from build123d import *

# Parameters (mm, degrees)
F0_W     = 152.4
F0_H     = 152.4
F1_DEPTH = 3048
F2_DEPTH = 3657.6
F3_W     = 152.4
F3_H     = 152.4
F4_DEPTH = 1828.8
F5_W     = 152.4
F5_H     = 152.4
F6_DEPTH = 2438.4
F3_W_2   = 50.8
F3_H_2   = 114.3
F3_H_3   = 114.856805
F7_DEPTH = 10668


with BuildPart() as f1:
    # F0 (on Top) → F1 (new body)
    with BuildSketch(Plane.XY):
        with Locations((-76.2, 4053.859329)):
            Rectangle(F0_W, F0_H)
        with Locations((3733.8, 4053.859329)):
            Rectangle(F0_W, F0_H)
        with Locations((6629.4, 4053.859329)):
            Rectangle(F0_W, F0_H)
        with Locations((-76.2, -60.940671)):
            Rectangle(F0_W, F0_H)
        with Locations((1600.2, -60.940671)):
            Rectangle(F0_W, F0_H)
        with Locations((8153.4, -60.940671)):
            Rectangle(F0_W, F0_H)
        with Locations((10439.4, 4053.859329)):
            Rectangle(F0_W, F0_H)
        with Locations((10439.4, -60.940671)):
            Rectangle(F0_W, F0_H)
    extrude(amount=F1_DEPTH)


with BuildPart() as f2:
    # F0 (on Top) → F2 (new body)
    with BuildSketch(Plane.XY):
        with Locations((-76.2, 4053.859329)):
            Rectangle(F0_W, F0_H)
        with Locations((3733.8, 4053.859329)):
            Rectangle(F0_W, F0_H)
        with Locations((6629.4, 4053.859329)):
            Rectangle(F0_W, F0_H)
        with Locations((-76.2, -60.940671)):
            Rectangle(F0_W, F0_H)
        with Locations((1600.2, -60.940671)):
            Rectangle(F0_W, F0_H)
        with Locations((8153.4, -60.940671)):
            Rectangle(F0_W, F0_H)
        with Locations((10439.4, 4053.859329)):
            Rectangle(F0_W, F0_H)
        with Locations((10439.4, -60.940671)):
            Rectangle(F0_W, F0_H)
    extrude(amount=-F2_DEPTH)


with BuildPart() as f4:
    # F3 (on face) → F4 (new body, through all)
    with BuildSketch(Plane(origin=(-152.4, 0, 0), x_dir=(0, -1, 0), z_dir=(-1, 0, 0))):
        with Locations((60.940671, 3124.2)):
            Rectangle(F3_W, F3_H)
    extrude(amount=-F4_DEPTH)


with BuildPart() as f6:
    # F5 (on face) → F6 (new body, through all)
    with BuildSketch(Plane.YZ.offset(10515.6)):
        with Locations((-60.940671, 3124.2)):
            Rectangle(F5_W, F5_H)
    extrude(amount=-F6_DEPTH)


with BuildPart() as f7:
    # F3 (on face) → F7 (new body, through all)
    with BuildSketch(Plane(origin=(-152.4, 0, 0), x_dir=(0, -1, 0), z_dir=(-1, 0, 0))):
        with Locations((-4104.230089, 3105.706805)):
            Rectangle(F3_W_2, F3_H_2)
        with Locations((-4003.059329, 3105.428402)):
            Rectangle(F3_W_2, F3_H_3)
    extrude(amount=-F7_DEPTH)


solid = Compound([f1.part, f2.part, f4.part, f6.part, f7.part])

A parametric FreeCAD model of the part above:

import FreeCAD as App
import Part
import Sketcher

V = App.Vector
Q = App.Units.Quantity


def add_polygon(sketch, points):
    """Adds a closed chain of lines whose ends are joined by coincident constraints."""
    first, n = sketch.GeometryCount, len(points)
    for a, b in zip(points, points[1:] + points[:1]):
        sketch.addGeometry(Part.LineSegment(App.Vector(*a, 0), App.Vector(*b, 0)), False)
    for i in range(n):
        sketch.addConstraint(Sketcher.Constraint("Coincident", first + i, 2, first + (i + 1) % n, 1))

doc = App.newDocument("Part")
body = doc.addObject("PartDesign::Body", "Body")
body.AllowCompound = True

sketch1 = body.newObject("Sketcher::SketchObject", "Sketch")
sketch1.AttachmentSupport = (doc.getObject("XY_Plane"), [""])
sketch1.MapMode = "FlatFace"
add_polygon(sketch1, [(-152.4, 4130.059329), (-152.4, 3977.659329), (0, 3977.659329), (0, 4130.059329)])
add_polygon(sketch1, [(3657.6, 4130.059329), (3657.6, 3977.659329), (3810, 3977.659329), (3810, 4130.059329)])
add_polygon(sketch1, [(6553.2, 4130.059329), (6553.2, 3977.659329), (6705.6, 3977.659329), (6705.6, 4130.059329)])
add_polygon(sketch1, [(-152.4, 15.259329), (-152.4, -137.140671), (0, -137.140671), (0, 15.259329)])
add_polygon(sketch1, [(1524, 15.259329), (1524, -137.140671), (1676.4, -137.140671), (1676.4, 15.259329)])
add_polygon(sketch1, [(8077.2, 15.259329), (8077.2, -137.140671), (8229.6, -137.140671), (8229.6, 15.259329)])
add_polygon(sketch1, [(10363.2, 4130.059329), (10363.2, 3977.659329), (10515.6, 3977.659329), (10515.6, 4130.059329)])
add_polygon(sketch1, [(10363.2, 15.259329), (10363.2, -137.140671), (10515.6, -137.140671), (10515.6, 15.259329)])
sketch1.addConstraint(Sketcher.Constraint("Vertical", 0))
sketch1.addConstraint(Sketcher.Constraint("Horizontal", 1))
sketch1.addConstraint(Sketcher.Constraint("Vertical", 2))
sketch1.addConstraint(Sketcher.Constraint("Horizontal", 3))
sketch1.addConstraint(Sketcher.Constraint("Vertical", 4))
sketch1.addConstraint(Sketcher.Constraint("Horizontal", 5))
sketch1.addConstraint(Sketcher.Constraint("Vertical", 6))
sketch1.addConstraint(Sketcher.Constraint("Horizontal", 7))
sketch1.addConstraint(Sketcher.Constraint("Vertical", 8))
sketch1.addConstraint(Sketcher.Constraint("Horizontal", 9))
sketch1.addConstraint(Sketcher.Constraint("Vertical", 10))
sketch1.addConstraint(Sketcher.Constraint("Horizontal", 11))
sketch1.addConstraint(Sketcher.Constraint("Vertical", 12))
sketch1.addConstraint(Sketcher.Constraint("Horizontal", 13))
sketch1.addConstraint(Sketcher.Constraint("Vertical", 14))
sketch1.addConstraint(Sketcher.Constraint("Horizontal", 15))
sketch1.addConstraint(Sketcher.Constraint("Vertical", 16))
sketch1.addConstraint(Sketcher.Constraint("Horizontal", 17))
sketch1.addConstraint(Sketcher.Constraint("Vertical", 18))
sketch1.addConstraint(Sketcher.Constraint("Horizontal", 19))
sketch1.addConstraint(Sketcher.Constraint("Vertical", 20))
sketch1.addConstraint(Sketcher.Constraint("Horizontal", 21))
sketch1.addConstraint(Sketcher.Constraint("Vertical", 22))
sketch1.addConstraint(Sketcher.Constraint("Horizontal", 23))
sketch1.addConstraint(Sketcher.Constraint("Vertical", 24))
sketch1.addConstraint(Sketcher.Constraint("Horizontal", 25))
sketch1.addConstraint(Sketcher.Constraint("Vertical", 26))
sketch1.addConstraint(Sketcher.Constraint("Horizontal", 27))
sketch1.addConstraint(Sketcher.Constraint("Vertical", 28))
sketch1.addConstraint(Sketcher.Constraint("Horizontal", 29))
sketch1.addConstraint(Sketcher.Constraint("Vertical", 30))
sketch1.addConstraint(Sketcher.Constraint("Horizontal", 31))
sketch1.addConstraint(Sketcher.Constraint("PointOnObject", 1, 2, -2))
sketch1.addConstraint(Sketcher.Constraint("PointOnObject", 13, 2, -2))
sketch1.addConstraint(Sketcher.Constraint("Horizontal", 1, 2, 4, 2))
sketch1.addConstraint(Sketcher.Constraint("Horizontal", 3, 2, 6, 2))
sketch1.addConstraint(Sketcher.Constraint("Horizontal", 5, 2, 8, 2))
sketch1.addConstraint(Sketcher.Constraint("Horizontal", 7, 2, 10, 2))
sketch1.addConstraint(Sketcher.Constraint("Horizontal", 13, 2, 16, 2))
sketch1.addConstraint(Sketcher.Constraint("Horizontal", 15, 2, 18, 2))
sketch1.addConstraint(Sketcher.Constraint("Horizontal", 17, 2, 20, 2))
sketch1.addConstraint(Sketcher.Constraint("Horizontal", 19, 2, 22, 2))
sketch1.addConstraint(Sketcher.Constraint("Horizontal", 9, 2, 24, 2))
sketch1.addConstraint(Sketcher.Constraint("Horizontal", 11, 2, 26, 2))
sketch1.addConstraint(Sketcher.Constraint("Horizontal", 21, 2, 28, 2))
sketch1.addConstraint(Sketcher.Constraint("Horizontal", 23, 2, 30, 2))
sketch1.addConstraint(Sketcher.Constraint("Vertical", 3, 2, 12, 2))
sketch1.addConstraint(Sketcher.Constraint("Vertical", 27, 2, 28, 2))
sketch1.addConstraint(Sketcher.Constraint("Vertical", 26, 2, 29, 2))
sketch1.addConstraint(Sketcher.Constraint("Equal", 3, 5))
sketch1.addConstraint(Sketcher.Constraint("Equal", 7, 9))
sketch1.addConstraint(Sketcher.Constraint("Equal", 15, 17))
sketch1.addConstraint(Sketcher.Constraint("Equal", 19, 21))
sketch1.addConstraint(Sketcher.Constraint("Equal", 23, 25))
sketch1.addConstraint(Sketcher.Constraint("Equal", 31, 0))
sketch1.addConstraint(Sketcher.Constraint("Equal", 10, 12))
sketch1.addConstraint(Sketcher.Constraint("DistanceX", 1, 1, 1, 2, Q("6 in")))
sketch1.addConstraint(Sketcher.Constraint("DistanceX", -1, 1, 4, 2, Q("144 in")))
sketch1.addConstraint(Sketcher.Constraint("DistanceX", -1, 1, 8, 2, Q("258 in")))
sketch1.addConstraint(Sketcher.Constraint("DistanceX", -1, 1, 16, 2, Q("60 in")))
sketch1.addConstraint(Sketcher.Constraint("DistanceX", -1, 1, 20, 2, Q("318 in")))
sketch1.addConstraint(Sketcher.Constraint("DistanceX", -1, 1, 24, 2, Q("408 in")))
sketch1.addConstraint(Sketcher.Constraint("DistanceY", 12, 2, 0, 2, Q("162 in")))
sketch1.addConstraint(Sketcher.Constraint("DistanceY", -1, 1, 0, 2, Q("3977.659329 mm")))
pad1 = body.newObject("PartDesign::Pad", "Pad")
pad1.Profile = sketch1
pad1.Length = Q("120 in")
body2 = doc.addObject("PartDesign::Body", "Body001")
body2.AllowCompound = True

sketch2 = body2.newObject("Sketcher::SketchObject", "Sketch001")
sketch2.AttachmentSupport = (doc.getObject("XY_Plane001"), [""])
sketch2.MapMode = "FlatFace"
add_polygon(sketch2, [(-152.4, 4130.059329), (-152.4, 3977.659329), (0, 3977.659329), (0, 4130.059329)])
add_polygon(sketch2, [(3657.6, 4130.059329), (3657.6, 3977.659329), (3810, 3977.659329), (3810, 4130.059329)])
add_polygon(sketch2, [(6553.2, 4130.059329), (6553.2, 3977.659329), (6705.6, 3977.659329), (6705.6, 4130.059329)])
add_polygon(sketch2, [(-152.4, 15.259329), (-152.4, -137.140671), (0, -137.140671), (0, 15.259329)])
add_polygon(sketch2, [(1524, 15.259329), (1524, -137.140671), (1676.4, -137.140671), (1676.4, 15.259329)])
add_polygon(sketch2, [(8077.2, 15.259329), (8077.2, -137.140671), (8229.6, -137.140671), (8229.6, 15.259329)])
add_polygon(sketch2, [(10363.2, 4130.059329), (10363.2, 3977.659329), (10515.6, 3977.659329), (10515.6, 4130.059329)])
add_polygon(sketch2, [(10363.2, 15.259329), (10363.2, -137.140671), (10515.6, -137.140671), (10515.6, 15.259329)])
sketch2.addConstraint(Sketcher.Constraint("Vertical", 0))
sketch2.addConstraint(Sketcher.Constraint("Horizontal", 1))
sketch2.addConstraint(Sketcher.Constraint("Vertical", 2))
sketch2.addConstraint(Sketcher.Constraint("Horizontal", 3))
sketch2.addConstraint(Sketcher.Constraint("Vertical", 4))
sketch2.addConstraint(Sketcher.Constraint("Horizontal", 5))
sketch2.addConstraint(Sketcher.Constraint("Vertical", 6))
sketch2.addConstraint(Sketcher.Constraint("Horizontal", 7))
sketch2.addConstraint(Sketcher.Constraint("Vertical", 8))
sketch2.addConstraint(Sketcher.Constraint("Horizontal", 9))
sketch2.addConstraint(Sketcher.Constraint("Vertical", 10))
sketch2.addConstraint(Sketcher.Constraint("Horizontal", 11))
sketch2.addConstraint(Sketcher.Constraint("Vertical", 12))
sketch2.addConstraint(Sketcher.Constraint("Horizontal", 13))
sketch2.addConstraint(Sketcher.Constraint("Vertical", 14))
sketch2.addConstraint(Sketcher.Constraint("Horizontal", 15))
sketch2.addConstraint(Sketcher.Constraint("Vertical", 16))
sketch2.addConstraint(Sketcher.Constraint("Horizontal", 17))
sketch2.addConstraint(Sketcher.Constraint("Vertical", 18))
sketch2.addConstraint(Sketcher.Constraint("Horizontal", 19))
sketch2.addConstraint(Sketcher.Constraint("Vertical", 20))
sketch2.addConstraint(Sketcher.Constraint("Horizontal", 21))
sketch2.addConstraint(Sketcher.Constraint("Vertical", 22))
sketch2.addConstraint(Sketcher.Constraint("Horizontal", 23))
sketch2.addConstraint(Sketcher.Constraint("Vertical", 24))
sketch2.addConstraint(Sketcher.Constraint("Horizontal", 25))
sketch2.addConstraint(Sketcher.Constraint("Vertical", 26))
sketch2.addConstraint(Sketcher.Constraint("Horizontal", 27))
sketch2.addConstraint(Sketcher.Constraint("Vertical", 28))
sketch2.addConstraint(Sketcher.Constraint("Horizontal", 29))
sketch2.addConstraint(Sketcher.Constraint("Vertical", 30))
sketch2.addConstraint(Sketcher.Constraint("Horizontal", 31))
sketch2.addConstraint(Sketcher.Constraint("PointOnObject", 1, 2, -2))
sketch2.addConstraint(Sketcher.Constraint("PointOnObject", 13, 2, -2))
sketch2.addConstraint(Sketcher.Constraint("Horizontal", 1, 2, 4, 2))
sketch2.addConstraint(Sketcher.Constraint("Horizontal", 3, 2, 6, 2))
sketch2.addConstraint(Sketcher.Constraint("Horizontal", 5, 2, 8, 2))
sketch2.addConstraint(Sketcher.Constraint("Horizontal", 7, 2, 10, 2))
sketch2.addConstraint(Sketcher.Constraint("Horizontal", 13, 2, 16, 2))
sketch2.addConstraint(Sketcher.Constraint("Horizontal", 15, 2, 18, 2))
sketch2.addConstraint(Sketcher.Constraint("Horizontal", 17, 2, 20, 2))
sketch2.addConstraint(Sketcher.Constraint("Horizontal", 19, 2, 22, 2))
sketch2.addConstraint(Sketcher.Constraint("Horizontal", 9, 2, 24, 2))
sketch2.addConstraint(Sketcher.Constraint("Horizontal", 11, 2, 26, 2))
sketch2.addConstraint(Sketcher.Constraint("Horizontal", 21, 2, 28, 2))
sketch2.addConstraint(Sketcher.Constraint("Horizontal", 23, 2, 30, 2))
sketch2.addConstraint(Sketcher.Constraint("Vertical", 3, 2, 12, 2))
sketch2.addConstraint(Sketcher.Constraint("Vertical", 27, 2, 28, 2))
sketch2.addConstraint(Sketcher.Constraint("Vertical", 26, 2, 29, 2))
sketch2.addConstraint(Sketcher.Constraint("Equal", 3, 5))
sketch2.addConstraint(Sketcher.Constraint("Equal", 7, 9))
sketch2.addConstraint(Sketcher.Constraint("Equal", 15, 17))
sketch2.addConstraint(Sketcher.Constraint("Equal", 19, 21))
sketch2.addConstraint(Sketcher.Constraint("Equal", 23, 25))
sketch2.addConstraint(Sketcher.Constraint("Equal", 31, 0))
sketch2.addConstraint(Sketcher.Constraint("Equal", 10, 12))
sketch2.addConstraint(Sketcher.Constraint("DistanceX", 1, 1, 1, 2, Q("6 in")))
sketch2.addConstraint(Sketcher.Constraint("DistanceX", -1, 1, 4, 2, Q("144 in")))
sketch2.addConstraint(Sketcher.Constraint("DistanceX", -1, 1, 8, 2, Q("258 in")))
sketch2.addConstraint(Sketcher.Constraint("DistanceX", -1, 1, 16, 2, Q("60 in")))
sketch2.addConstraint(Sketcher.Constraint("DistanceX", -1, 1, 20, 2, Q("318 in")))
sketch2.addConstraint(Sketcher.Constraint("DistanceX", -1, 1, 24, 2, Q("408 in")))
sketch2.addConstraint(Sketcher.Constraint("DistanceY", 12, 2, 0, 2, Q("162 in")))
sketch2.addConstraint(Sketcher.Constraint("DistanceY", -1, 1, 0, 2, Q("3977.659329 mm")))
pad2 = body2.newObject("PartDesign::Pad", "Pad001")
pad2.Profile = sketch2
pad2.Length = Q("144 in")
pad2.Reversed = True
body3 = doc.addObject("PartDesign::Body", "Body002")

sketch3 = body3.newObject("Sketcher::SketchObject", "Sketch002")
sketch3.AttachmentSupport = (doc.getObject("YZ_Plane002"), [""])
sketch3.MapMode = "FlatFace"
sketch3.AttachmentOffset = App.Placement(V(0, 0, -6 * 25.4), App.Rotation())
add_polygon(sketch3, [(15.259329, 3200.4), (15.259329, 3048), (-137.140671, 3048), (-137.140671, 3200.4)])
sketch3.addConstraint(Sketcher.Constraint("Vertical", 0))
sketch3.addConstraint(Sketcher.Constraint("Horizontal", 1))
sketch3.addConstraint(Sketcher.Constraint("Vertical", 2))
sketch3.addConstraint(Sketcher.Constraint("Horizontal", 3))
sketch3.addConstraint(Sketcher.Constraint("Equal", 3, 0))
sketch3.addConstraint(Sketcher.Constraint("DistanceX", 1, 2, 1, 1, Q("6 in")))
sketch3.addConstraint(Sketcher.Constraint("DistanceY", -1, 1, 0, 2, Q("120 in")))
sketch3.addConstraint(Sketcher.Constraint("DistanceX", -1, 1, 0, 2, Q("15.259329 mm")))
pad3 = body3.newObject("PartDesign::Pad", "Pad002")
pad3.Profile = sketch3
pad3.Length = Q("72 in")
body4 = doc.addObject("PartDesign::Body", "Body003")

sketch4 = body4.newObject("Sketcher::SketchObject", "Sketch003")
sketch4.AttachmentSupport = (doc.getObject("YZ_Plane003"), [""])
sketch4.MapMode = "FlatFace"
sketch4.AttachmentOffset = App.Placement(V(0, 0, 414 * 25.4), App.Rotation())
add_polygon(sketch4, [(-137.140671, 3200.4), (-137.140671, 3048), (15.259329, 3048), (15.259329, 3200.4)])
sketch4.addConstraint(Sketcher.Constraint("Vertical", 0))
sketch4.addConstraint(Sketcher.Constraint("Horizontal", 1))
sketch4.addConstraint(Sketcher.Constraint("Vertical", 2))
sketch4.addConstraint(Sketcher.Constraint("Horizontal", 3))
sketch4.addConstraint(Sketcher.Constraint("Equal", 3, 0))
sketch4.addConstraint(Sketcher.Constraint("DistanceX", 1, 1, 1, 2, Q("6 in")))
sketch4.addConstraint(Sketcher.Constraint("DistanceY", -1, 1, 0, 2, Q("120 in")))
sketch4.addConstraint(Sketcher.Constraint("DistanceX", 0, 2, -1, 1, Q("137.140671 mm")))
pad4 = body4.newObject("PartDesign::Pad", "Pad003")
pad4.Profile = sketch4
pad4.Length = Q("96 in")
pad4.Reversed = True
body5 = doc.addObject("PartDesign::Body", "Body004")
body5.AllowCompound = True

sketch5 = body5.newObject("Sketcher::SketchObject", "Sketch004")
sketch5.AttachmentSupport = (doc.getObject("YZ_Plane004"), [""])
sketch5.MapMode = "FlatFace"
sketch5.AttachmentOffset = App.Placement(V(0, 0, -6 * 25.4), App.Rotation())
add_polygon(sketch5, [(4129.630089, 3162.856805), (4129.630089, 3048.556805), (4078.830089, 3048.556805), (4078.830089, 3162.856805)])
add_polygon(sketch5, [(4028.459329, 3162.856805), (4028.459329, 3047.999999), (3977.659329, 3047.999999), (3977.659329, 3162.856805)])
sketch5.addConstraint(Sketcher.Constraint("Vertical", 0))
sketch5.addConstraint(Sketcher.Constraint("Horizontal", 1))
sketch5.addConstraint(Sketcher.Constraint("Vertical", 2))
sketch5.addConstraint(Sketcher.Constraint("Horizontal", 3))
sketch5.addConstraint(Sketcher.Constraint("Vertical", 4))
sketch5.addConstraint(Sketcher.Constraint("Horizontal", 5))
sketch5.addConstraint(Sketcher.Constraint("Vertical", 6))
sketch5.addConstraint(Sketcher.Constraint("Horizontal", 7))
sketch5.addConstraint(Sketcher.Constraint("Horizontal", 3, 2, 6, 2))
sketch5.addConstraint(Sketcher.Constraint("Equal", 3, 5))
sketch5.addConstraint(Sketcher.Constraint("DistanceX", 1, 2, 1, 1, Q("2 in")))
sketch5.addConstraint(Sketcher.Constraint("DistanceY", 0, 2, 0, 1, Q("4.5 in")))
sketch5.addConstraint(Sketcher.Constraint("DistanceY", -1, 1, 4, 2, Q("120 in")))
sketch5.addConstraint(Sketcher.Constraint("DistanceY", 4, 2, 4, 1, Q("114.856805 mm")))
sketch5.addConstraint(Sketcher.Constraint("DistanceX", -1, 1, 0, 2, Q("4129.630089 mm")))
sketch5.addConstraint(Sketcher.Constraint("DistanceX", -1, 1, 4, 2, Q("4028.459329 mm")))
pad5 = body5.newObject("PartDesign::Pad", "Pad004")
pad5.Profile = sketch5
pad5.Length = Q("420 in")

doc.recompute()
